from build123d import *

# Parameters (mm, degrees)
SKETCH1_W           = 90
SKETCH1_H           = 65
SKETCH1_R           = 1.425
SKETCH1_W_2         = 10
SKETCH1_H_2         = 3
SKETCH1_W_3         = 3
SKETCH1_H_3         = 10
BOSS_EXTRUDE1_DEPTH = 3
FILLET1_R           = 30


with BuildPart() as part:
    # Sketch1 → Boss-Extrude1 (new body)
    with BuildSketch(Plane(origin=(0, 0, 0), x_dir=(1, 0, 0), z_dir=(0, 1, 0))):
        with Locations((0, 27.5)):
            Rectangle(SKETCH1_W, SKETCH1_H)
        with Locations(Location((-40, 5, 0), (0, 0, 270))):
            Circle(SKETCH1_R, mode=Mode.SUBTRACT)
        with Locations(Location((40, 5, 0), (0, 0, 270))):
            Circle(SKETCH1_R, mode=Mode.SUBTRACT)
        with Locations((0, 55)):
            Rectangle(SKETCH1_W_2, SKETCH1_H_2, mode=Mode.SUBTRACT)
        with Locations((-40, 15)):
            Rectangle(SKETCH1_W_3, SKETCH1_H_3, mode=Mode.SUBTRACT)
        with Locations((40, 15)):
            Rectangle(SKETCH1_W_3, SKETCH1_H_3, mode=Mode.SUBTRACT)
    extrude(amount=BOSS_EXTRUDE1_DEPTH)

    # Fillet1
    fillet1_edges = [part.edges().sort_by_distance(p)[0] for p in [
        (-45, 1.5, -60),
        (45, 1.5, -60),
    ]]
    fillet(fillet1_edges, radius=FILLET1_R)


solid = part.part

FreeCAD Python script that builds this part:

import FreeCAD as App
import Part
import Sketcher
from FreeCAD import Vector
Q = App.Units.Quantity


def edges_at(feature, points):
    """Names of the edges that pass closest to the given points."""
    edges = feature.Shape.Edges
    near = lambda p: min(range(len(edges)), key=lambda i: edges[i].distToShape(Part.Vertex(*p))[0])
    return sorted({f"Edge{near(p) + 1}" for p in points})

doc = App.newDocument("Part")
body = doc.addObject("PartDesign::Body", "Body")

# Sketch on XZ plane
sketch1 = body.newObject("Sketcher::SketchObject", "Sketch")
sketch1.AttachmentSupport = (doc.getObject("XZ_Plane"), [""])
sketch1.MapMode = "FlatFace"
sketch1.addGeometry([
    Part.LineSegment(Vector(-45, -60, 0), Vector(-45, 5, 0)),  # 0
    Part.LineSegment(Vector(-45, 5, 0), Vector(45, 5, 0)),  # 1
    Part.LineSegment(Vector(45, 5, 0), Vector(45, -60, 0)),  # 2
    Part.LineSegment(Vector(45, -60, 0), Vector(-45, -60, 0)),  # 3
    Part.Circle(Vector(-40, -5, 0), Vector(0, 0, 1), 1.425),  # 4
    Part.LineSegment(Vector(-38.5, -10, 0), Vector(-41.5, -10, 0)),  # 5
    Part.LineSegment(Vector(-41.5, -10, 0), Vector(-41.5, -20, 0)),  # 6
    Part.LineSegment(Vector(-41.5, -20, 0), Vector(-38.5, -20, 0)),  # 7
    Part.LineSegment(Vector(-38.5, -20, 0), Vector(-38.5, -10, 0)),  # 8
    Part.Circle(Vector(40, -5, 0), Vector(0, 0, 1), 1.425),  # 9
    Part.LineSegment(Vector(41.5, -10, 0), Vector(38.5, -10, 0)),  # 10
    Part.LineSegment(Vector(38.5, -10, 0), Vector(38.5, -20, 0)),  # 11
    Part.LineSegment(Vector(38.5, -20, 0), Vector(41.5, -20, 0)),  # 12
    Part.LineSegment(Vector(41.5, -20, 0), Vector(41.5, -10, 0)),  # 13
    Part.LineSegment(Vector(5, -53.5, 0), Vector(-5, -53.5, 0)),  # 14
    Part.LineSegment(Vector(-5, -53.5, 0), Vector(-5, -56.5, 0)),  # 15
    Part.LineSegment(Vector(-5, -56.5, 0), Vector(5, -56.5, 0)),  # 16
    Part.LineSegment(Vector(5, -56.5, 0), Vector(5, -53.5, 0)),  # 17
], False)
sketch1.addConstraint([
    Sketcher.Constraint("Coincident", 0, 2, 1, 1),
    Sketcher.Constraint("Coincident", 1, 2, 2, 1),
    Sketcher.Constraint("Coincident", 2, 2, 3, 1),
    Sketcher.Constraint("Coincident", 3, 2, 0, 1),
    Sketcher.Constraint("Coincident", 5, 2, 6, 1),
    Sketcher.Constraint("Coincident", 6, 2, 7, 1),
    Sketcher.Constraint("Coincident", 7, 2, 8, 1),
    Sketcher.Constraint("Coincident", 8, 2, 5, 1),
    Sketcher.Constraint("Coincident", 10, 2, 11, 1),
    Sketcher.Constraint("Coincident", 11, 2, 12, 1),
    Sketcher.Constraint("Coincident", 12, 2, 13, 1),
    Sketcher.Constraint("Coincident", 13, 2, 10, 1),
    Sketcher.Constraint("Coincident", 14, 2, 15, 1),
    Sketcher.Constraint("Coincident", 15, 2, 16, 1),
    Sketcher.Constraint("Coincident", 16, 2, 17, 1),
    Sketcher.Constraint("Coincident", 17, 2, 14, 1),
    Sketcher.Constraint("Vertical", 0),
    Sketcher.Constraint("Horizontal", 1),
    Sketcher.Constraint("Vertical", 2),
    Sketcher.Constraint("Horizontal", 3),
    Sketcher.Constraint("Horizontal", 5),
    Sketcher.Constraint("Vertical", 6),
    Sketcher.Constraint("Horizontal", 7),
    Sketcher.Constraint("Vertical", 8),
    Sketcher.Constraint("Horizontal", 10),
    Sketcher.Constraint("Vertical", 11),
    Sketcher.Constraint("Horizontal", 12),
    Sketcher.Constraint("Vertical", 13),
    Sketcher.Constraint("Horizontal", 14),
    Sketcher.Constraint("Vertical", 15),
    Sketcher.Constraint("Horizontal", 16),
    Sketcher.Constraint("Vertical", 17),
    Sketcher.Constraint("Equal", 4, 9),
    Sketcher.Constraint("Symmetric", 4, 3, 9, 3, -2),
    Sketcher.Constraint("Symmetric", 8, 2, 10, 2, -2),
    Sketcher.Constraint("Symmetric", 6, 2, 12, 2, -2),
    Sketcher.Constraint("Equal", 16, 6),
    Sketcher.Constraint("Equal", 12, 15),
    Sketcher.Constraint("Diameter", 4, Q("2.85 mm")),
    Sketcher.Constraint("DistanceX", 1, 1, 1, 2, Q("90 mm")),
    Sketcher.Constraint("DistanceX", 5, 2, 5, 1, Q("3 mm")),
    Sketcher.Constraint("DistanceX", 14, 2, 14, 1, Q("10 mm")),
    Sketcher.Constraint("DistanceY", 0, 1, 0, 2, Q("65 mm")),
    Sketcher.Constraint("DistanceX", 4, 3, -1, 1, Q("40 mm")),
    Sketcher.Constraint("DistanceY", 4, 3, -1, 1, Q("5 mm")),
    Sketcher.Constraint("DistanceX", 0, 2, -1, 1, Q("45 mm")),
    Sketcher.Constraint("DistanceY", -1, 1, 0, 2, Q("5 mm")),
    Sketcher.Constraint("DistanceY", 5, 2, -1, 1, Q("10 mm")),
    Sketcher.Constraint("DistanceX", 14, 2, -1, 1, Q("5 mm")),
    Sketcher.Constraint("DistanceX", 8, 2, 10, 2, Q("77 mm")),
    Sketcher.Constraint("DistanceY", 14, 2, -1, 1, Q("53.5 mm")),
])
pad1 = body.newObject("PartDesign::Pad", "Pad")
pad1.Profile = sketch1
pad1.Length = 3
pad1.Reversed = True
doc.recompute()

fillet = body.newObject("PartDesign::Fillet", "Fillet")
fillet.Base = (pad1, edges_at(pad1, [(-45, 1.5, -60), (45, 1.5, -60)]))
fillet.Radius = 30

doc.recompute()
